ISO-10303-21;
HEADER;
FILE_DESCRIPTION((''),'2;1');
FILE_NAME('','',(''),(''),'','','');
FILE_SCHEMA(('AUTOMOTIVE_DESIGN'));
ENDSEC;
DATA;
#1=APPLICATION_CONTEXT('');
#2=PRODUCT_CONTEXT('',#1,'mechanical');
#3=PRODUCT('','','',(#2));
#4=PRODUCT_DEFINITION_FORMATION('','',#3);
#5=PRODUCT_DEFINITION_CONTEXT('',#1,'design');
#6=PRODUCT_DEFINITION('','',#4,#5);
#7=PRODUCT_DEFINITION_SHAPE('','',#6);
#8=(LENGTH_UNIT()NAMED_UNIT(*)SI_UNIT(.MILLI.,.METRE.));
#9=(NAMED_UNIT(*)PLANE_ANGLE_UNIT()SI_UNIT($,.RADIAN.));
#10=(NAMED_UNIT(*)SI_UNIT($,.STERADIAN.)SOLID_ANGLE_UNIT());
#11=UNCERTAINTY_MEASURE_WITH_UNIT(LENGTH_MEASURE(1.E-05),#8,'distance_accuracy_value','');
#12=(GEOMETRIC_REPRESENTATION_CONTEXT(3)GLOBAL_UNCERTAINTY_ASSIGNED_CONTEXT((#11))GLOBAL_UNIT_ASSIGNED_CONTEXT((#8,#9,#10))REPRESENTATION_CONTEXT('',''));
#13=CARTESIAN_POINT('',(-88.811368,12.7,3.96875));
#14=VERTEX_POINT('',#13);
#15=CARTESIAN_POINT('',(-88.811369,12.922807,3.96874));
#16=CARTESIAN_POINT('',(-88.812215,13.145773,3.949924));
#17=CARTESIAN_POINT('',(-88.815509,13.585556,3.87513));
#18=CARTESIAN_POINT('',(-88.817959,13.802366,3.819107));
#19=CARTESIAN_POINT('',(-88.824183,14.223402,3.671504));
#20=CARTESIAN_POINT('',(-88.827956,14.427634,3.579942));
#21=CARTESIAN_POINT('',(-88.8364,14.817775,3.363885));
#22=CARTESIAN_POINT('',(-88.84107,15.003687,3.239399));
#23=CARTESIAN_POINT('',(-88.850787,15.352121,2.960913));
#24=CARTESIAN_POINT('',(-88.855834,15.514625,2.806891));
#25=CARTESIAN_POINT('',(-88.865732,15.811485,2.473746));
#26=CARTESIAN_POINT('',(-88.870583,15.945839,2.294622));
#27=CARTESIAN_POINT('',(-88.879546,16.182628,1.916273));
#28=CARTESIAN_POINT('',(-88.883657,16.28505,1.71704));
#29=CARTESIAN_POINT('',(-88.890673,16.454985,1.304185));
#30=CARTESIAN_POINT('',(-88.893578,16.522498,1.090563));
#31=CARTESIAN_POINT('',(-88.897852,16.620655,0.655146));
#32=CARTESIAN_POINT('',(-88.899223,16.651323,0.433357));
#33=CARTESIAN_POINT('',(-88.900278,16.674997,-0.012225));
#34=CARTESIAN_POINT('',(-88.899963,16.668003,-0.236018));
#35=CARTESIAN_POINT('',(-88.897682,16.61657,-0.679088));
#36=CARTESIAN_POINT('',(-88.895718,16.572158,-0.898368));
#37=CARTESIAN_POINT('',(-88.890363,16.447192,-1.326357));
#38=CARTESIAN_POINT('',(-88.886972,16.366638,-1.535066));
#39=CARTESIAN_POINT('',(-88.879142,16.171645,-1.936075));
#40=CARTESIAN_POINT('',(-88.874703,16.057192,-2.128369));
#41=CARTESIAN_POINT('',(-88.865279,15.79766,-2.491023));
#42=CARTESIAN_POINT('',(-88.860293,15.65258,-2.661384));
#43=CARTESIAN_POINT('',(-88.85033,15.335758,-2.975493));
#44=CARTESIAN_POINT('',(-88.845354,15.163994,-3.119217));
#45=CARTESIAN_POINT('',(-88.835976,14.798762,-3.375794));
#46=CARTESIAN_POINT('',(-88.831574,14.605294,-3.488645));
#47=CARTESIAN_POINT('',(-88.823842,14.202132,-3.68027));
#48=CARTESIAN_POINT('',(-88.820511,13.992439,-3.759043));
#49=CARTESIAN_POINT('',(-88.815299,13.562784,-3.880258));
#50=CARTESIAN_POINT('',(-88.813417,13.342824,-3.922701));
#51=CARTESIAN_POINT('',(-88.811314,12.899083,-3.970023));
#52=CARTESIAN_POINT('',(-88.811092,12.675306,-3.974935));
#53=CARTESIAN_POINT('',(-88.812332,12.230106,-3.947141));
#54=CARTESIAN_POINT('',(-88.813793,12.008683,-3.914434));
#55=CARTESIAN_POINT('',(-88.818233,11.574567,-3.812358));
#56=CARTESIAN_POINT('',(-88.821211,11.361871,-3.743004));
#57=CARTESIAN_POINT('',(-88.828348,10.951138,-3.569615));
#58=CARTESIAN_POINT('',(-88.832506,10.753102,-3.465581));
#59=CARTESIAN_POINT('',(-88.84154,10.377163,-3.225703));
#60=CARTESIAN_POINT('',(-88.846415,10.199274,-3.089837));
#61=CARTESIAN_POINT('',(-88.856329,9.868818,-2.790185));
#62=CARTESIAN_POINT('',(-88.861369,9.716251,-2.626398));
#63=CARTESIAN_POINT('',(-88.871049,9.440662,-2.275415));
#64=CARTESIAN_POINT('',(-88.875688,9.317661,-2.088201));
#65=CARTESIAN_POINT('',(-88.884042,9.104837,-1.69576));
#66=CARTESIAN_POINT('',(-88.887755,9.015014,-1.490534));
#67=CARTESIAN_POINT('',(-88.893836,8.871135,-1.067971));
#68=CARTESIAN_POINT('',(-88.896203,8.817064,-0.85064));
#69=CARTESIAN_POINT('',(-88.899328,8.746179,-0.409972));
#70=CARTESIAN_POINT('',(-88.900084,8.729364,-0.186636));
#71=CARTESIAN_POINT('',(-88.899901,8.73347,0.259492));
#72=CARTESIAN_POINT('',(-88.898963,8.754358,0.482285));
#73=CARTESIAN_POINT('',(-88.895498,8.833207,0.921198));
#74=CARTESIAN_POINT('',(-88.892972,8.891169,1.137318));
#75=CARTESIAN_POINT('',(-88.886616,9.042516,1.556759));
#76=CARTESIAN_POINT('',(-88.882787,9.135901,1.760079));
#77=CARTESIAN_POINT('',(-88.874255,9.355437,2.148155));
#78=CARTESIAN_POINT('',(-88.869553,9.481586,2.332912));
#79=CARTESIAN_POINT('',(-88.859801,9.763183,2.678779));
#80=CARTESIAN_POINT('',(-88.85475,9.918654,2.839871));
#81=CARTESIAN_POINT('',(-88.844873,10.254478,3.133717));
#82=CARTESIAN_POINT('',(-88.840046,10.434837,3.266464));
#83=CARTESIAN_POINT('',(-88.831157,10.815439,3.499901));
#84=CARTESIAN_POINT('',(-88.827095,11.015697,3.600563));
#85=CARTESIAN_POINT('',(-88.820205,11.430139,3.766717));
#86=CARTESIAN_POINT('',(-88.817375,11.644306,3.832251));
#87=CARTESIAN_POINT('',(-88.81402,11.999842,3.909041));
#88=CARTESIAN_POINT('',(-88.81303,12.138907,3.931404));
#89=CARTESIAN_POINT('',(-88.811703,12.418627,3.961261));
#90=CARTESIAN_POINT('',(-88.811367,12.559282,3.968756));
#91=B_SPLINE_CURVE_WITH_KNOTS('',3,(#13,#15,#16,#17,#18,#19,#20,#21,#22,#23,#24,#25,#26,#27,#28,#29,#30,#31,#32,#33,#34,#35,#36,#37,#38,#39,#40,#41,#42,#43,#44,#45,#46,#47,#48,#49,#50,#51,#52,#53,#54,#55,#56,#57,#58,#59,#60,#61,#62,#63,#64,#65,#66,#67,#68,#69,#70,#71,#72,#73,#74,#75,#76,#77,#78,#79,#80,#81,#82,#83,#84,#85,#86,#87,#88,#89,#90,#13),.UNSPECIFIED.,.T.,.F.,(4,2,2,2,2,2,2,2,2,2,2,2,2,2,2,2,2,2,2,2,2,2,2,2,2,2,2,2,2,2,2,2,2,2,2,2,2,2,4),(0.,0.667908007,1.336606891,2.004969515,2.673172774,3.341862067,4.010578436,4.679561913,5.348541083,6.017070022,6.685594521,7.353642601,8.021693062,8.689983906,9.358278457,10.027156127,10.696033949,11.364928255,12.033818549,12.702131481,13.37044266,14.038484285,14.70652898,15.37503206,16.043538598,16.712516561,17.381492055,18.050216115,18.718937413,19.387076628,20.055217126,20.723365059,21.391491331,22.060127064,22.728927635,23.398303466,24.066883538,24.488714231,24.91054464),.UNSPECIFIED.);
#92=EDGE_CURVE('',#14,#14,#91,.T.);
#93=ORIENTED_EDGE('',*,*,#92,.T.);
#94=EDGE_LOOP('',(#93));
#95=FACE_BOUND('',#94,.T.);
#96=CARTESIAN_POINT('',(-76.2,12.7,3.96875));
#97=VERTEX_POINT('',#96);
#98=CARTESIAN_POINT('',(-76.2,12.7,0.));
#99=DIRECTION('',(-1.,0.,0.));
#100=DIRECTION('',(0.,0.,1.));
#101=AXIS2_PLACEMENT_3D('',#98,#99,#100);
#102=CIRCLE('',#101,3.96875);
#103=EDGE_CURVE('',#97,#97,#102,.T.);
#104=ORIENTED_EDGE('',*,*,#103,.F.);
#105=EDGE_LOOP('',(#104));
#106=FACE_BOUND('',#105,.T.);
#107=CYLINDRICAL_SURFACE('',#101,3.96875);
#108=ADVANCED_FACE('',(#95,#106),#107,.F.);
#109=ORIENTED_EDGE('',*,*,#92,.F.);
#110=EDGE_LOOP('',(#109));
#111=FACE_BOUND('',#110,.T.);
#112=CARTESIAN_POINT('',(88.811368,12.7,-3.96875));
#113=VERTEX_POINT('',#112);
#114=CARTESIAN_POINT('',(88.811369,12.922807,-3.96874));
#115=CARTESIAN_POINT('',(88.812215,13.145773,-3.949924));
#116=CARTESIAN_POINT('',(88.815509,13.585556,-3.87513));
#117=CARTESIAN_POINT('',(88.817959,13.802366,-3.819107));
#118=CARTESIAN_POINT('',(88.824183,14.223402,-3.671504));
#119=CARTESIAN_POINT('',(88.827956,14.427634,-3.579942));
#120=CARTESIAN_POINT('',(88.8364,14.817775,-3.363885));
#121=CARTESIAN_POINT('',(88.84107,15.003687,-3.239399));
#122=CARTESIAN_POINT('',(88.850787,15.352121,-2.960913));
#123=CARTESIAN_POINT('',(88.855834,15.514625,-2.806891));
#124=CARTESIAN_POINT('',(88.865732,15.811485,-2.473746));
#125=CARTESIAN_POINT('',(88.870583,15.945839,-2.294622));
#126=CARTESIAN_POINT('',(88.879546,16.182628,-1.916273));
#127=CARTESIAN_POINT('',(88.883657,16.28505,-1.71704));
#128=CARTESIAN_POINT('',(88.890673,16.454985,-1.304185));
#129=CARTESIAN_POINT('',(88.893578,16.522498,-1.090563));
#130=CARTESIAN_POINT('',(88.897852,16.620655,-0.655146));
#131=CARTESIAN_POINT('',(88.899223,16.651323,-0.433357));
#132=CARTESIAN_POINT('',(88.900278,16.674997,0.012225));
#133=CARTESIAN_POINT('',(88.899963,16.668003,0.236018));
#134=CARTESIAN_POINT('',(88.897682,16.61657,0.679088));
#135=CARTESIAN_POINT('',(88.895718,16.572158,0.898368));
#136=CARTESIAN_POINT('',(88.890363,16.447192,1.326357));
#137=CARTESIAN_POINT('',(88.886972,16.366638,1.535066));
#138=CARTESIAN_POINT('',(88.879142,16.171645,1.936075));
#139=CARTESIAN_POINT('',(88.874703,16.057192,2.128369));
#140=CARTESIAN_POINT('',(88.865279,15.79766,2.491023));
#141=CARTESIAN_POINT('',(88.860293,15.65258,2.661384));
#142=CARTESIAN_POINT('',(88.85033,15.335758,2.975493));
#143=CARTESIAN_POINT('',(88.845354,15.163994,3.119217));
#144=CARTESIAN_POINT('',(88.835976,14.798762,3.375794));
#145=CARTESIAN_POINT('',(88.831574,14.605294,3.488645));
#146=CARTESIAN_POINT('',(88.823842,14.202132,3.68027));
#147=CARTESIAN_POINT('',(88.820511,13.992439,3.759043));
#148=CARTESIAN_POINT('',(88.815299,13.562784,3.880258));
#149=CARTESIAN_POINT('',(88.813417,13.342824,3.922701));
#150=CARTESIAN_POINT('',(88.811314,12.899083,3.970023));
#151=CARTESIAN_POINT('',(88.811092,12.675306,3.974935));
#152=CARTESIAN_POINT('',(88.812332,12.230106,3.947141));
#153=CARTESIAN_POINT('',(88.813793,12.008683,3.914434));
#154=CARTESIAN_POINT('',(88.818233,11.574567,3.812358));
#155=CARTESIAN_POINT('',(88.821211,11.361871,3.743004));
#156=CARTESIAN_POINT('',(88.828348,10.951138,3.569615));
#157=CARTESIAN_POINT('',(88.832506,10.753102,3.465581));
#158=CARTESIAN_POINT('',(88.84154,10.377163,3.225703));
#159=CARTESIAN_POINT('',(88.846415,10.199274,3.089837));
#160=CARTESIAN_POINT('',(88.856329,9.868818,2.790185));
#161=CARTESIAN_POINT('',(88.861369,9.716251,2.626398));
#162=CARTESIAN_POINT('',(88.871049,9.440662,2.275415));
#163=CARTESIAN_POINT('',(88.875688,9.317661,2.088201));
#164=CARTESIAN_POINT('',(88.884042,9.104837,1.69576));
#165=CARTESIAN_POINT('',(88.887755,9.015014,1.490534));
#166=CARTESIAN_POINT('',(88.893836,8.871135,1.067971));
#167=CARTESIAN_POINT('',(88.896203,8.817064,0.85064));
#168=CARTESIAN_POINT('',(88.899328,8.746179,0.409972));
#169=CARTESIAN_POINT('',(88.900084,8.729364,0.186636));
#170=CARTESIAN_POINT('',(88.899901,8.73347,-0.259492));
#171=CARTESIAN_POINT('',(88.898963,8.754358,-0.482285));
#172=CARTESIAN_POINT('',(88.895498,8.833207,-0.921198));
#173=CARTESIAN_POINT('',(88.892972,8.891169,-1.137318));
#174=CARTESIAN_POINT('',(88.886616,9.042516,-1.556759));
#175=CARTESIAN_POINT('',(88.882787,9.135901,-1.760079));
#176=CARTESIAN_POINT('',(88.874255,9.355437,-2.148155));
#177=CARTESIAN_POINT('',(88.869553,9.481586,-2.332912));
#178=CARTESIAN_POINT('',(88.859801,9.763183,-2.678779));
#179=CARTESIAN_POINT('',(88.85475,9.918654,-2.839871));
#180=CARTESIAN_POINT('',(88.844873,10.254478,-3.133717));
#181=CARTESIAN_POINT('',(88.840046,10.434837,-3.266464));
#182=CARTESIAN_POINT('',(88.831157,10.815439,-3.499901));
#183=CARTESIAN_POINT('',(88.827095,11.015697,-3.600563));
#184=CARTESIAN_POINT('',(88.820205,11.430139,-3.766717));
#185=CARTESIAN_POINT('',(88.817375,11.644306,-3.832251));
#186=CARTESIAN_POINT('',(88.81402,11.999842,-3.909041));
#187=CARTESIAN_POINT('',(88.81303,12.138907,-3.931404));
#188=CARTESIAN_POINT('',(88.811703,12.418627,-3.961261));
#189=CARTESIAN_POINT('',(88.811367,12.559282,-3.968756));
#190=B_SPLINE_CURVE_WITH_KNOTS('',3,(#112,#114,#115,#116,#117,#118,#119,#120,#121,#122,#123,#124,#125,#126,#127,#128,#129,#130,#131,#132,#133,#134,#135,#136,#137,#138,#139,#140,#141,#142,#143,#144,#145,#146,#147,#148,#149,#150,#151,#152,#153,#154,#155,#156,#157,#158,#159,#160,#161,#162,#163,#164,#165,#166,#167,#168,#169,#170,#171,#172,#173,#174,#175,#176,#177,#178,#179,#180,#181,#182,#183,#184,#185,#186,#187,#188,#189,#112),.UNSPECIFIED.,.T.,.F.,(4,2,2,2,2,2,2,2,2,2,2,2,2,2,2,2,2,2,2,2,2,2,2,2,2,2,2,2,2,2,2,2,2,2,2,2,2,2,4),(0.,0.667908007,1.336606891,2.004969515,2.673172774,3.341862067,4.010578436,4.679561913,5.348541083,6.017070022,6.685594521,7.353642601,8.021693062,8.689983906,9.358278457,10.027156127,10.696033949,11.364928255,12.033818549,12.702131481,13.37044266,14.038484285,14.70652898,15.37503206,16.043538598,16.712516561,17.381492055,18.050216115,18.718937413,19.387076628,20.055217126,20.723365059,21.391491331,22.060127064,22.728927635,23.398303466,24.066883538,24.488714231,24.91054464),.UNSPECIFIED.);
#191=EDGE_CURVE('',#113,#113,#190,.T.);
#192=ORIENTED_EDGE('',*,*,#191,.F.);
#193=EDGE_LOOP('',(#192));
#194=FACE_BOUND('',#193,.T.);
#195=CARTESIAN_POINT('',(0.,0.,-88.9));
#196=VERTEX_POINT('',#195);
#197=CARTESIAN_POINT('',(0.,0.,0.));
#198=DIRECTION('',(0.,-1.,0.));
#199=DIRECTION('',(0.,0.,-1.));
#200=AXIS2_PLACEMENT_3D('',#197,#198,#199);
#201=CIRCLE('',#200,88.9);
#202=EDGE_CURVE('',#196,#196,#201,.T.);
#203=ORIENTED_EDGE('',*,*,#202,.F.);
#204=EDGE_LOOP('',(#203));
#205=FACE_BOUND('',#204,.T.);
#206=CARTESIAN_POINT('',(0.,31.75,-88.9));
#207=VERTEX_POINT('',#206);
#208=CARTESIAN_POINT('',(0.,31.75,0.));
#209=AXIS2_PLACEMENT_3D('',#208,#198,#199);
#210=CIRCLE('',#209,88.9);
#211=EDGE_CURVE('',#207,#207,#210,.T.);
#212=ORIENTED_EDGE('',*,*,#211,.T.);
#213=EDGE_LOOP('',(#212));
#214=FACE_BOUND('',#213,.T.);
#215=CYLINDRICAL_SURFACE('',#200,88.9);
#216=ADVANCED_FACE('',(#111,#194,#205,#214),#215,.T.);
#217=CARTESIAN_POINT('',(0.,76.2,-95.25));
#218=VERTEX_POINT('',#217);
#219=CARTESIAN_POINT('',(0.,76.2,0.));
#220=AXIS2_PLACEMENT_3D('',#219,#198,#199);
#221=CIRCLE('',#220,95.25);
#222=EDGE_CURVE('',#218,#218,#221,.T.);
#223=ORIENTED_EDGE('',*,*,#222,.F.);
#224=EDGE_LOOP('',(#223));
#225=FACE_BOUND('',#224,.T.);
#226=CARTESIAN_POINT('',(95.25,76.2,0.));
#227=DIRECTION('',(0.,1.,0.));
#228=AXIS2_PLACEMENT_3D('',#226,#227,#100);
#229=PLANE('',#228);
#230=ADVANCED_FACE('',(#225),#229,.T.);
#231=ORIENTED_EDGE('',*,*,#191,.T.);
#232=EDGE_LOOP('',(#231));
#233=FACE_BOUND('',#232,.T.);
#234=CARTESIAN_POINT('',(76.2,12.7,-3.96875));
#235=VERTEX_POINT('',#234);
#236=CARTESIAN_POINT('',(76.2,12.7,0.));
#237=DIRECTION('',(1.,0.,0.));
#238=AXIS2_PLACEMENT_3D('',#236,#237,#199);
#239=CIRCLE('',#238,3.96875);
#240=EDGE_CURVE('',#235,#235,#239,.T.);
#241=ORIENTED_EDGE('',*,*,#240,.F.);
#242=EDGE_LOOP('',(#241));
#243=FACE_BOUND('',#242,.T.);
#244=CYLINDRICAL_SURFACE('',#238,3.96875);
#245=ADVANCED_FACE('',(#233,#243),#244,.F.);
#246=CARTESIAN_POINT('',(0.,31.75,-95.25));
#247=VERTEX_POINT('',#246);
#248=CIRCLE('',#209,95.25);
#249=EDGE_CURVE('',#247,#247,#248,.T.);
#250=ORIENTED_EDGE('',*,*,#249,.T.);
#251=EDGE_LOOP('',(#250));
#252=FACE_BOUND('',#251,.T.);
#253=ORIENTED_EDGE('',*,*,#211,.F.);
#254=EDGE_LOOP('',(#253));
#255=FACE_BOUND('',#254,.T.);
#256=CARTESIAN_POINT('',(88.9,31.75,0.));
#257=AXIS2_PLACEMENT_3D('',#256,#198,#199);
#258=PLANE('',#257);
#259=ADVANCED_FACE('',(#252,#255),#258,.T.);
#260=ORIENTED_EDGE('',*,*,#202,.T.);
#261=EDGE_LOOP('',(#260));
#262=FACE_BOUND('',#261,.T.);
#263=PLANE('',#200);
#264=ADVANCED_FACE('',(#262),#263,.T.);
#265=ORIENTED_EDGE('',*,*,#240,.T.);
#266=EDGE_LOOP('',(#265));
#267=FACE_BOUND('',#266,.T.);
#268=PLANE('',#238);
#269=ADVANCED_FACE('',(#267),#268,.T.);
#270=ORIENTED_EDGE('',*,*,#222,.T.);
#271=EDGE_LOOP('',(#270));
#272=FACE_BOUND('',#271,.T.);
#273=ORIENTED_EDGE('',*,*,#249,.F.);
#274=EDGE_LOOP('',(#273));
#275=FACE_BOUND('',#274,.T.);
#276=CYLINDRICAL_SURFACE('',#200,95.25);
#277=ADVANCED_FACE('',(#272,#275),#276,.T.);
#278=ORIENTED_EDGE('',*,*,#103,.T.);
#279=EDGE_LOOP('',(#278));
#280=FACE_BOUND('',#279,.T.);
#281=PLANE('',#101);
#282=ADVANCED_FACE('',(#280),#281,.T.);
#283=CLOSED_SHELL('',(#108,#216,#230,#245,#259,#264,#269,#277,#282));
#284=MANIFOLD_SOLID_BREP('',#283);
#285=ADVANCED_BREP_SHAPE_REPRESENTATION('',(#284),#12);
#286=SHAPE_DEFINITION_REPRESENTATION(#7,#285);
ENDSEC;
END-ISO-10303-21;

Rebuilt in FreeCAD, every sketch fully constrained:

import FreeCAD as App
import Part
import Sketcher

V = App.Vector
Q = App.Units.Quantity


def add_polygon(sketch, points):
    """Adds a closed chain of lines whose ends are joined by coincident constraints."""
    first, n = sketch.GeometryCount, len(points)
    for a, b in zip(points, points[1:] + points[:1]):
        sketch.addGeometry(Part.LineSegment(App.Vector(*a, 0), App.Vector(*b, 0)), False)
    for i in range(n):
        sketch.addConstraint(Sketcher.Constraint("Coincident", first + i, 2, first + (i + 1) % n, 1))

doc = App.newDocument("Part")
params = doc.addObject("Spreadsheet::Sheet", "Params")
for row, (alias, value) in enumerate([
    ("sketch1_height", "3 in"),
    ("sketch1_width", "3.5 in"),
    ("sketch1_width2", "0.25 in"),
    ("sketch1_height2", "1.25 in"),
    ("revolution_angle", "360 deg"),
    ("sketch2_diameter", "0.3125 in"),
    ("pocket1_length", "0.5 in"),
], start=1):
    params.set(f"A{row}", alias)
    params.set(f"B{row}", "=" + value)
    params.setAlias(f"B{row}", alias)

body = doc.addObject("PartDesign::Body", "Body")

sketch1 = body.newObject("Sketcher::SketchObject", "Sketch")
sketch1.AttachmentSupport = (doc.getObject("XY_Plane"), [""])
sketch1.MapMode = "FlatFace"
add_polygon(sketch1, [(0, 0), (88.9, 0), (88.9, 31.75), (95.25, 31.75), (95.25, 76.2), (0, 76.2)])
sketch1.addConstraint([
    Sketcher.Constraint("Horizontal", 0),
    Sketcher.Constraint("Vertical", 1),
    Sketcher.Constraint("Horizontal", 2),
    Sketcher.Constraint("Vertical", 3),
    Sketcher.Constraint("Horizontal", 4),
    Sketcher.Constraint("Vertical", 5),
    Sketcher.Constraint("Coincident", 5, 2, -1, 1),
    Sketcher.Constraint("DistanceY", 5, 2, 5, 1, Q("3 in")),
    Sketcher.Constraint("DistanceX", 0, 1, 0, 2, Q("3.5 in")),
    Sketcher.Constraint("DistanceX", 2, 1, 2, 2, Q("0.25 in")),
    Sketcher.Constraint("DistanceY", 1, 1, 1, 2, Q("1.25 in")),
])
sketch1.setExpression("Constraints[13]", "Params.sketch1_height")
sketch1.setExpression("Constraints[14]", "Params.sketch1_width")
sketch1.setExpression("Constraints[15]", "Params.sketch1_width2")
sketch1.setExpression("Constraints[16]", "Params.sketch1_height2")
revolution = body.newObject("PartDesign::Revolution", "Revolution")
revolution.Profile = sketch1
revolution.ReferenceAxis = (sketch1, ["V_Axis"])
revolution.setExpression("Angle", "Params.revolution_angle")

sketch2 = body.newObject("Sketcher::SketchObject", "Sketch001")
sketch2.AttachmentSupport = (doc.getObject("YZ_Plane"), [""])
sketch2.MapMode = "FlatFace"
sketch2.AttachmentOffset = App.Placement(V(0, 0, 3.5 * 25.4), App.Rotation())
sketch2.addGeometry(Part.Circle(V(12.7, 0, 0), V(0, 0, 1), 3.96875), False)
sketch2.addConstraint([
    Sketcher.Constraint("PointOnObject", 0, 3, -1),
    Sketcher.Constraint("Diameter", 0, Q("0.3125 in")),
    Sketcher.Constraint("DistanceX", -1, 1, 0, 3, Q("0.5 in")),
])
sketch2.setExpression("Constraints[1]", "Params.sketch2_diameter")
pocket1 = body.newObject("PartDesign::Pocket", "Pocket")
pocket1.Profile = sketch2
pocket1.setExpression("Length", "Params.pocket1_length")
doc.recompute()

polarpattern = body.newObject("PartDesign::PolarPattern", "PolarPattern")
polarpattern.Originals = [pocket1]
polarpattern.Axis = (doc.getObject("Y_Axis"), [""])
polarpattern.Angle = 360
polarpattern.Occurrences = 2
body.Tip = polarpattern

doc.recompute()
